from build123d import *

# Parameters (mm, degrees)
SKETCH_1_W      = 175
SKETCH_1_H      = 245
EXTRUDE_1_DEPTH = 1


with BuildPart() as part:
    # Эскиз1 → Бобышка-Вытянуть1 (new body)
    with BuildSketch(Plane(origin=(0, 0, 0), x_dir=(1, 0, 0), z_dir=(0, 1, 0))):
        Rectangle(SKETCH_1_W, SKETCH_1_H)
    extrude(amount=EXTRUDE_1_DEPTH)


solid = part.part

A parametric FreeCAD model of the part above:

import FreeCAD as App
import Part
import Sketcher
from FreeCAD import Vector
Q = App.Units.Quantity

doc = App.newDocument("Part")
body = doc.addObject("PartDesign::Body", "Body")

# Sketch on XZ plane
sketch1 = body.newObject("Sketcher::SketchObject", "Sketch")
sketch1.AttachmentSupport = (doc.getObject("XZ_Plane"), [""])
sketch1.MapMode = "FlatFace"
sketch1.addGeometry(Part.LineSegment(Vector(-87.5, -122.5, 0), Vector(-87.5, 122.5, 0)), False)
sketch1.addGeometry(Part.LineSegment(Vector(-87.5, 122.5, 0), Vector(87.5, 122.5, 0)), False)
sketch1.addGeometry(Part.LineSegment(Vector(87.5, 122.5, 0), Vector(87.5, -122.5, 0)), False)
sketch1.addGeometry(Part.LineSegment(Vector(87.5, -122.5, 0), Vector(-87.5, -122.5, 0)), False)
sketch1.addConstraint(Sketcher.Constraint("Coincident", 0, 2, 1, 1))
sketch1.addConstraint(Sketcher.Constraint("Coincident", 1, 2, 2, 1))
sketch1.addConstraint(Sketcher.Constraint("Coincident", 2, 2, 3, 1))
sketch1.addConstraint(Sketcher.Constraint("Coincident", 3, 2, 0, 1))
sketch1.addConstraint(Sketcher.Constraint("Vertical", 0))
sketch1.addConstraint(Sketcher.Constraint("Horizontal", 1))
sketch1.addConstraint(Sketcher.Constraint("Vertical", 2))
sketch1.addConstraint(Sketcher.Constraint("Horizontal", 3))
sketch1.addConstraint(Sketcher.Constraint("Symmetric", 0, 2, 2, 2, -1, 1))
sketch1.addConstraint(Sketcher.Constraint("DistanceX", 1, 1, 1, 2, Q("175 mm")))
sketch1.addConstraint(Sketcher.Constraint("DistanceY", 0, 1, 0, 2, Q("245 mm")))
pad1 = body.newObject("PartDesign::Pad", "Pad")
pad1.Profile = sketch1
pad1.Length = 1
pad1.Reversed = True

doc.recompute()
